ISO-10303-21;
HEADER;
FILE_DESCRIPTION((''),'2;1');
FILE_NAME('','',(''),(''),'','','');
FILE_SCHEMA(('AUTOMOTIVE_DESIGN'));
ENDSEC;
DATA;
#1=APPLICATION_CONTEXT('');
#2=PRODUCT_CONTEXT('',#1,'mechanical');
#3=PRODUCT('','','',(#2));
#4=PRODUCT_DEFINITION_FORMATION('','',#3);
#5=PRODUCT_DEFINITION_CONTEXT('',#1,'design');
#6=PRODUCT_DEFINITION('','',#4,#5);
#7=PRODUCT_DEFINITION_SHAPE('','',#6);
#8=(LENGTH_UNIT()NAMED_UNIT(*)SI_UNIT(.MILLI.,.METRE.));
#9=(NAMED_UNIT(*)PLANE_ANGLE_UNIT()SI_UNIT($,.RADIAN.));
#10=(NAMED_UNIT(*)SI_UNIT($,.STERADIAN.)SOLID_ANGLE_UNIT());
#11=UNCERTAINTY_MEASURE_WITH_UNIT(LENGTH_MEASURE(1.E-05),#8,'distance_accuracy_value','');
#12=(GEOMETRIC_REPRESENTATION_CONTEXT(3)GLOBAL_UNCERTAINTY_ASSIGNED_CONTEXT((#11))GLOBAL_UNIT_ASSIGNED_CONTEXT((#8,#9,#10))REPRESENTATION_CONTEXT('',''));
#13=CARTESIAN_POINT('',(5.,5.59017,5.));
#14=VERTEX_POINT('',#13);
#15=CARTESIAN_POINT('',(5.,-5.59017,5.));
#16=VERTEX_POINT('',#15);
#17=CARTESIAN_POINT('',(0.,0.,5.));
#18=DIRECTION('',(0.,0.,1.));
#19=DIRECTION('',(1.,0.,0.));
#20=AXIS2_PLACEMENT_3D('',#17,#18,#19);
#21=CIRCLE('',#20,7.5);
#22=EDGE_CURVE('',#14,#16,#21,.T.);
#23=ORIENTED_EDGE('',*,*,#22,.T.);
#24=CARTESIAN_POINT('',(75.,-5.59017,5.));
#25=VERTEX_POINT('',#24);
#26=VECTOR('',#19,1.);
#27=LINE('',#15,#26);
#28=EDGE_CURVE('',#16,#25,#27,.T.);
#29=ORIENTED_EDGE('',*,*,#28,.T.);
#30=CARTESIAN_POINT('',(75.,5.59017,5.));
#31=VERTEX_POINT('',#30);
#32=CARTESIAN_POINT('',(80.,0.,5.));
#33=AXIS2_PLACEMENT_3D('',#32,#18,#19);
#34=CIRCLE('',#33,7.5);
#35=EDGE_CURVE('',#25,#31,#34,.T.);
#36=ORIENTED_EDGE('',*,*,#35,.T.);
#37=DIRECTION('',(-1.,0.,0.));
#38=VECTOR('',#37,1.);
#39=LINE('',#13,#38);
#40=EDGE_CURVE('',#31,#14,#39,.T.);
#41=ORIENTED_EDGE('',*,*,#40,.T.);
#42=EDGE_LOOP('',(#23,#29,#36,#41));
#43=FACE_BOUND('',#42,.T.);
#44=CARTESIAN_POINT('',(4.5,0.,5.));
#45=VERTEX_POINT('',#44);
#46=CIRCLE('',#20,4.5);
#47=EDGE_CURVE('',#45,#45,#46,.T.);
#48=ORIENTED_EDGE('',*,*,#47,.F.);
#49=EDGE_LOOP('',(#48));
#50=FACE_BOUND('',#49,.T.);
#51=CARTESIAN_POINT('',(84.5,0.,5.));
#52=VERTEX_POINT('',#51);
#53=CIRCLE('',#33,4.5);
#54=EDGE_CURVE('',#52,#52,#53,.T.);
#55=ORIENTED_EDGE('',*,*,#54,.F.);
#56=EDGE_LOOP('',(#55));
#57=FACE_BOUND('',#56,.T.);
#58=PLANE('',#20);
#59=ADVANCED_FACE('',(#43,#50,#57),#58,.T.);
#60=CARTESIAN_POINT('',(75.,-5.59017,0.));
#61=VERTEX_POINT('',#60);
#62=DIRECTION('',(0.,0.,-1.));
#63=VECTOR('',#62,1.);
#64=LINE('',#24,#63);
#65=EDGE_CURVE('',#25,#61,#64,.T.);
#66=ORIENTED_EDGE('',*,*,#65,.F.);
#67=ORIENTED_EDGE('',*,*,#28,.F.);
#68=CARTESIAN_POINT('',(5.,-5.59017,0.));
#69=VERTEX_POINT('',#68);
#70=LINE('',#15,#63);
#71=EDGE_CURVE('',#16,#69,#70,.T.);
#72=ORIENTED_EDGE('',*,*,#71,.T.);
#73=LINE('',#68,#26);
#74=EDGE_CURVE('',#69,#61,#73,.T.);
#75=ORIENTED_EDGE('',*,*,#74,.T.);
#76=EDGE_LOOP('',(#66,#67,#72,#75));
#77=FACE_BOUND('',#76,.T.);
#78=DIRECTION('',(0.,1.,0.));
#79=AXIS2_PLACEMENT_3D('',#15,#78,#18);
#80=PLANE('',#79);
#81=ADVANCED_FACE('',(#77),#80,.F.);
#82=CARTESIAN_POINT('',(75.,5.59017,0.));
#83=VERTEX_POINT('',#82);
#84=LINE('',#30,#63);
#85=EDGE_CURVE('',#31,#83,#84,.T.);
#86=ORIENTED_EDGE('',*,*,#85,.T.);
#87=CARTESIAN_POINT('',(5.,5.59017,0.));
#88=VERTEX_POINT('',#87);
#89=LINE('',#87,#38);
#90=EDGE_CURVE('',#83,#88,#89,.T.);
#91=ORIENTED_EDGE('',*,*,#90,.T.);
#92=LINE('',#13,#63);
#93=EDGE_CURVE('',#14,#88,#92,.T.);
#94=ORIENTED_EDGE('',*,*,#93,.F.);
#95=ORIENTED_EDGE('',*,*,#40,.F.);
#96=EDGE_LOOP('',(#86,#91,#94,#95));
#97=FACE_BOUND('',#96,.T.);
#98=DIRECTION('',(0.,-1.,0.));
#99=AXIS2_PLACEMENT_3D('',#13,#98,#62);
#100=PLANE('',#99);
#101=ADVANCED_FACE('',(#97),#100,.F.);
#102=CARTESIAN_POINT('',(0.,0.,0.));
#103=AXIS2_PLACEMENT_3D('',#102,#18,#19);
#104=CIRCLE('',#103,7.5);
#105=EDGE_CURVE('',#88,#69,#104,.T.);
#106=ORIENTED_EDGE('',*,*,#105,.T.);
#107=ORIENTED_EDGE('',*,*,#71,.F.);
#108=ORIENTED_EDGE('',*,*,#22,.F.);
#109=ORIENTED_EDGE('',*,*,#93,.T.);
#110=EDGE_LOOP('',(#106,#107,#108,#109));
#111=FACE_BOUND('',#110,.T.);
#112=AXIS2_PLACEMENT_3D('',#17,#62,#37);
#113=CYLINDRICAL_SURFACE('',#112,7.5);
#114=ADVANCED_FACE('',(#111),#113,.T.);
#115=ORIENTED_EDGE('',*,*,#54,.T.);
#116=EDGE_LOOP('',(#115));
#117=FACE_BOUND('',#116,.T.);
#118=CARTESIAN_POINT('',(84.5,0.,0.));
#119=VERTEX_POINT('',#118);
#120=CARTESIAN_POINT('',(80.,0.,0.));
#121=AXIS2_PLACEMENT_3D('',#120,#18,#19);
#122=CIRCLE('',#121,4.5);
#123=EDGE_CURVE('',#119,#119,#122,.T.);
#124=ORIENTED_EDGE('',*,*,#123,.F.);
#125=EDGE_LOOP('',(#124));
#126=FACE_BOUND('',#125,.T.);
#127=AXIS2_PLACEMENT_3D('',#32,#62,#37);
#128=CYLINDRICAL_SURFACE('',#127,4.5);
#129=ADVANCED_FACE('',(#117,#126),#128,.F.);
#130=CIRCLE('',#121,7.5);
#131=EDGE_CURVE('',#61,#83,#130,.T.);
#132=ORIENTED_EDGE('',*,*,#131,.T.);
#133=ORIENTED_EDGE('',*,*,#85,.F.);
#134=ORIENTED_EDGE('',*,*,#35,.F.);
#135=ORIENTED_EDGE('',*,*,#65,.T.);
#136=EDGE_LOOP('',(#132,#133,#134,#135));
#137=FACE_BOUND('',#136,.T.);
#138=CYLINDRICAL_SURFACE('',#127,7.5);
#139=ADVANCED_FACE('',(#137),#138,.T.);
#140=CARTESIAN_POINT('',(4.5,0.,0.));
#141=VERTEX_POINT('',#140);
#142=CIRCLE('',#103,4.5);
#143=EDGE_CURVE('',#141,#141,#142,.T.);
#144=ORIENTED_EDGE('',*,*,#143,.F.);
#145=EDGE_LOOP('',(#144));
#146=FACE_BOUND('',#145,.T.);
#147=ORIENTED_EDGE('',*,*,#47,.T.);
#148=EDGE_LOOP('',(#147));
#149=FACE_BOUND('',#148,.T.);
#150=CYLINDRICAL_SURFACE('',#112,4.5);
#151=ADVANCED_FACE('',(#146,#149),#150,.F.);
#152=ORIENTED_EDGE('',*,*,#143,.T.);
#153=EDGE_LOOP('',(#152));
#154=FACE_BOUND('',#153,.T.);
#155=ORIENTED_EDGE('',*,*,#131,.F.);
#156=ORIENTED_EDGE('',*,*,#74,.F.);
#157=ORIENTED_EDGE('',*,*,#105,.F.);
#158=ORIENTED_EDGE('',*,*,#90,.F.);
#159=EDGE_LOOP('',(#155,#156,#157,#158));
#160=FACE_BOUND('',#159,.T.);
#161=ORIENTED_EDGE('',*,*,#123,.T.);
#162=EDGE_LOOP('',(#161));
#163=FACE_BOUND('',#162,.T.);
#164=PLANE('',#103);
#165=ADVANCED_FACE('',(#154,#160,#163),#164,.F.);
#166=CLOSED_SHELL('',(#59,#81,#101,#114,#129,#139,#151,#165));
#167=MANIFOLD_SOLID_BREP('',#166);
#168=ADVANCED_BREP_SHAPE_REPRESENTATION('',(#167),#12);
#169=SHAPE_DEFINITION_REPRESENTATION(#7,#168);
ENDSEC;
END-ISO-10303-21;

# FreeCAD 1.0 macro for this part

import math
import FreeCAD as App
import Part
import Sketcher
from FreeCAD import Vector

doc = App.newDocument("Part")
body = doc.addObject("PartDesign::Body", "Body")

sketch1 = doc.addObject("Sketcher::SketchObject", "Sketch")
body.addObject(sketch1)
sketch1.AttachmentSupport = (doc.XY_Plane, [""])
sketch1.MapMode = "FlatFace"
sketch1.addGeometry(Part.LineSegment(Vector(75, 5.6, 0), Vector(5, 5.6, 0)), False)
sketch1.addGeometry(Part.ArcOfCircle(Part.Circle(Vector(0, 0, 0), Vector(0, 0, 1), 7.5), math.radians(48), math.radians(312)), False)
sketch1.addGeometry(Part.LineSegment(Vector(5, -5.6, 0), Vector(75, -5.6, 0)), False)
sketch1.addGeometry(Part.ArcOfCircle(Part.Circle(Vector(80, 0, 0), Vector(0, 0, 1), 7.5), math.radians(-132), math.radians(132)), False)
sketch1.addGeometry(Part.Circle(Vector(80, 0, 0), Vector(0, 0, 1), 4.5), False)
sketch1.addGeometry(Part.Circle(Vector(0, 0, 0), Vector(0, 0, 1), 4.5), False)
sketch1.addConstraint(Sketcher.Constraint("Coincident", 0, 2, 1, 1))
sketch1.addConstraint(Sketcher.Constraint("Coincident", 1, 2, 2, 1))
sketch1.addConstraint(Sketcher.Constraint("Coincident", 2, 2, 3, 1))
sketch1.addConstraint(Sketcher.Constraint("Coincident", 3, 2, 0, 1))
sketch1.addConstraint(Sketcher.Constraint("Horizontal", 0))
sketch1.addConstraint(Sketcher.Constraint("Horizontal", 2))
sketch1.addConstraint(Sketcher.Constraint("Coincident", 1, 3, -1, 1))
sketch1.addConstraint(Sketcher.Constraint("Coincident", 5, 3, -1, 1))
sketch1.addConstraint(Sketcher.Constraint("Coincident", 4, 3, 3, 3))
sketch1.addConstraint(Sketcher.Constraint("Equal", 1, 3))
sketch1.addConstraint(Sketcher.Constraint("Equal", 4, 5))
sketch1.addConstraint(Sketcher.Constraint("Symmetric", 2, 2, 3, 2, -1))
sketch1.addConstraint(Sketcher.Constraint("Diameter", 4, 9.0))
sketch1.addConstraint(Sketcher.Constraint("Radius", 1, 7.5))
sketch1.addConstraint(Sketcher.Constraint("DistanceX", 0, 2, 0, 1, 70.0))
sketch1.addConstraint(Sketcher.Constraint("DistanceX", -1, 1, 3, 3, 80.0))
pad1 = doc.addObject("PartDesign::Pad", "Pad")
body.addObject(pad1)
pad1.Profile = sketch1
pad1.Length = 5

doc.recompute()
